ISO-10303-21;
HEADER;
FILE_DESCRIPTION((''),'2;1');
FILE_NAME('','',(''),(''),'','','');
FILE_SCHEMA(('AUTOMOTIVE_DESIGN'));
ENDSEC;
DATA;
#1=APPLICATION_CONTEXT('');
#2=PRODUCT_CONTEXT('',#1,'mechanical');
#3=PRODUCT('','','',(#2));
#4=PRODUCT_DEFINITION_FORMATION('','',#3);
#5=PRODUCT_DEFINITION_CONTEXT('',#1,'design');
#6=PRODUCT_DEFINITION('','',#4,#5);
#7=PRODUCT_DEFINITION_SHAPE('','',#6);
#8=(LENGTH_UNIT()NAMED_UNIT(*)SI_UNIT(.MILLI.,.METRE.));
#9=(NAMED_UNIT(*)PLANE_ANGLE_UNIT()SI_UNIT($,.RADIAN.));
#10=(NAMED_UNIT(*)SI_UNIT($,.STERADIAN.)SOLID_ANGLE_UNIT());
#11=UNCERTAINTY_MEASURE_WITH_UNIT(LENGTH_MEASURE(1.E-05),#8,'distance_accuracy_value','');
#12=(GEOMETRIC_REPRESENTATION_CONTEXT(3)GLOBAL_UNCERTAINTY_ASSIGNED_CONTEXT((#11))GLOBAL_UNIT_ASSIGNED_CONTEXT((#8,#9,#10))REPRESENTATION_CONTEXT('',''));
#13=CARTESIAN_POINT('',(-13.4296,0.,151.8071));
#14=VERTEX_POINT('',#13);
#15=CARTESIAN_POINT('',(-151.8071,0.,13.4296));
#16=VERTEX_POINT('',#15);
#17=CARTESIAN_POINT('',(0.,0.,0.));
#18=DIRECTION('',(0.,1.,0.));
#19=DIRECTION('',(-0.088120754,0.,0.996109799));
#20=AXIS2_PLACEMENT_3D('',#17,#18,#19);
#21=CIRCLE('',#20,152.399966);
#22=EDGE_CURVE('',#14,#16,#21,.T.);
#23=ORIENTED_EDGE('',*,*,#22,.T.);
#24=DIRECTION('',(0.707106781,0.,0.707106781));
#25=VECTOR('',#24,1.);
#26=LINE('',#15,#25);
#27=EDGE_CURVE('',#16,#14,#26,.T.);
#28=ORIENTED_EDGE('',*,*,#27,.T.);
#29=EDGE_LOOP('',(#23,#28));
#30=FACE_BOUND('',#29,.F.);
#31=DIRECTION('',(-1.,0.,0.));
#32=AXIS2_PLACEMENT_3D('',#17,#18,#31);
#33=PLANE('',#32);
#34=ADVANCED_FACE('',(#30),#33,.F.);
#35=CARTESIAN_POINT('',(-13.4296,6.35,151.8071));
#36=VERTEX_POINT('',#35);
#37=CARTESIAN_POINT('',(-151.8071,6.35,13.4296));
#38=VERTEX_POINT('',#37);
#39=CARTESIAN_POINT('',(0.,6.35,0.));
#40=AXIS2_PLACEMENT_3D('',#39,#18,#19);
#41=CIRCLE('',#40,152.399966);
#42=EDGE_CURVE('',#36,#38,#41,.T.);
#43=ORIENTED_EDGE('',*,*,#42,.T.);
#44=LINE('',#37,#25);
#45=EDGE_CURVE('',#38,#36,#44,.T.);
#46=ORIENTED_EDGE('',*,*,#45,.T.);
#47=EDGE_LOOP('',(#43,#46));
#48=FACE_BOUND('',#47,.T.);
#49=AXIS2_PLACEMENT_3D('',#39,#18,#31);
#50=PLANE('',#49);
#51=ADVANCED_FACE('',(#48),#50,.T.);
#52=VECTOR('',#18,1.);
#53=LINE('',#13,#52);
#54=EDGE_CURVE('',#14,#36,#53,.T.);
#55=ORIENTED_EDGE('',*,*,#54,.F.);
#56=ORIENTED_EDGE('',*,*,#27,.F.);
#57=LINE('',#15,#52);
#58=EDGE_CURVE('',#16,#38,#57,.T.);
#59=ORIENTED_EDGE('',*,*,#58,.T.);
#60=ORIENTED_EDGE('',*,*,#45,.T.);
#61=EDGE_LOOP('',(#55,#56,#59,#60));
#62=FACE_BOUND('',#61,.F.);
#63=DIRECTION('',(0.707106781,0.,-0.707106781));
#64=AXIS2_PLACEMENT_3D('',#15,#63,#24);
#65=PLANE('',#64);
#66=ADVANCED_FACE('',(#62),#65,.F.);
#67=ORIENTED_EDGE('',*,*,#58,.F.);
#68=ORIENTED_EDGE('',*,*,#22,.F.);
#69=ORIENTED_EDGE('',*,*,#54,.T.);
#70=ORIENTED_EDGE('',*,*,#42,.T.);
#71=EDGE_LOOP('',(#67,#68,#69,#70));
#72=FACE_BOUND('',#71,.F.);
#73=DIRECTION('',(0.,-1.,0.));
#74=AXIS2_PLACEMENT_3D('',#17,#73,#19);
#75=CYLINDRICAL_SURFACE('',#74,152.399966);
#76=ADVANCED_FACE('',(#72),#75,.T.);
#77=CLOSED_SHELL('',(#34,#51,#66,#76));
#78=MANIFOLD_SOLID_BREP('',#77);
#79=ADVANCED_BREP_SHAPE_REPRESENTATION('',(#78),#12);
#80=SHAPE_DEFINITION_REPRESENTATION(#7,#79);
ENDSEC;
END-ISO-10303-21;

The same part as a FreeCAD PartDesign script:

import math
import FreeCAD as App
import Part
import Sketcher
from FreeCAD import Vector
Q = App.Units.Quantity

doc = App.newDocument("Part")
body = doc.addObject("PartDesign::Body", "Body")

# Sketch on XZ plane
sketch1 = body.newObject("Sketcher::SketchObject", "Sketch")
sketch1.AttachmentSupport = (doc.getObject("XZ_Plane"), [""])
sketch1.MapMode = "FlatFace"
sketch1.addGeometry([
    Part.LineSegment(Vector(-152, 13, 0), Vector(-13, 152, 0)),
    Part.ArcOfCircle(Part.Circle(Vector(0, 0, 0), Vector(0, 0, 1), 152), math.radians(175), math.radians(455)),
], False)
sketch1.addConstraint([
    Sketcher.Constraint("Coincident", 0, 1, 1, 1),
    Sketcher.Constraint("Coincident", 1, 2, 0, 2),
    Sketcher.Constraint("Coincident", 1, 3, -1, 1),
    Sketcher.Constraint("Radius", 1, Q("6 in")),
    Sketcher.Constraint("Angle", 0, Q("45 deg")),
    Sketcher.Constraint("Distance", 0, Q("195.6953 mm")),
])
pad1 = body.newObject("PartDesign::Pad", "Pad")
pad1.Profile = sketch1
pad1.Length = Q("0.25 in")
pad1.Reversed = True

doc.recompute()
